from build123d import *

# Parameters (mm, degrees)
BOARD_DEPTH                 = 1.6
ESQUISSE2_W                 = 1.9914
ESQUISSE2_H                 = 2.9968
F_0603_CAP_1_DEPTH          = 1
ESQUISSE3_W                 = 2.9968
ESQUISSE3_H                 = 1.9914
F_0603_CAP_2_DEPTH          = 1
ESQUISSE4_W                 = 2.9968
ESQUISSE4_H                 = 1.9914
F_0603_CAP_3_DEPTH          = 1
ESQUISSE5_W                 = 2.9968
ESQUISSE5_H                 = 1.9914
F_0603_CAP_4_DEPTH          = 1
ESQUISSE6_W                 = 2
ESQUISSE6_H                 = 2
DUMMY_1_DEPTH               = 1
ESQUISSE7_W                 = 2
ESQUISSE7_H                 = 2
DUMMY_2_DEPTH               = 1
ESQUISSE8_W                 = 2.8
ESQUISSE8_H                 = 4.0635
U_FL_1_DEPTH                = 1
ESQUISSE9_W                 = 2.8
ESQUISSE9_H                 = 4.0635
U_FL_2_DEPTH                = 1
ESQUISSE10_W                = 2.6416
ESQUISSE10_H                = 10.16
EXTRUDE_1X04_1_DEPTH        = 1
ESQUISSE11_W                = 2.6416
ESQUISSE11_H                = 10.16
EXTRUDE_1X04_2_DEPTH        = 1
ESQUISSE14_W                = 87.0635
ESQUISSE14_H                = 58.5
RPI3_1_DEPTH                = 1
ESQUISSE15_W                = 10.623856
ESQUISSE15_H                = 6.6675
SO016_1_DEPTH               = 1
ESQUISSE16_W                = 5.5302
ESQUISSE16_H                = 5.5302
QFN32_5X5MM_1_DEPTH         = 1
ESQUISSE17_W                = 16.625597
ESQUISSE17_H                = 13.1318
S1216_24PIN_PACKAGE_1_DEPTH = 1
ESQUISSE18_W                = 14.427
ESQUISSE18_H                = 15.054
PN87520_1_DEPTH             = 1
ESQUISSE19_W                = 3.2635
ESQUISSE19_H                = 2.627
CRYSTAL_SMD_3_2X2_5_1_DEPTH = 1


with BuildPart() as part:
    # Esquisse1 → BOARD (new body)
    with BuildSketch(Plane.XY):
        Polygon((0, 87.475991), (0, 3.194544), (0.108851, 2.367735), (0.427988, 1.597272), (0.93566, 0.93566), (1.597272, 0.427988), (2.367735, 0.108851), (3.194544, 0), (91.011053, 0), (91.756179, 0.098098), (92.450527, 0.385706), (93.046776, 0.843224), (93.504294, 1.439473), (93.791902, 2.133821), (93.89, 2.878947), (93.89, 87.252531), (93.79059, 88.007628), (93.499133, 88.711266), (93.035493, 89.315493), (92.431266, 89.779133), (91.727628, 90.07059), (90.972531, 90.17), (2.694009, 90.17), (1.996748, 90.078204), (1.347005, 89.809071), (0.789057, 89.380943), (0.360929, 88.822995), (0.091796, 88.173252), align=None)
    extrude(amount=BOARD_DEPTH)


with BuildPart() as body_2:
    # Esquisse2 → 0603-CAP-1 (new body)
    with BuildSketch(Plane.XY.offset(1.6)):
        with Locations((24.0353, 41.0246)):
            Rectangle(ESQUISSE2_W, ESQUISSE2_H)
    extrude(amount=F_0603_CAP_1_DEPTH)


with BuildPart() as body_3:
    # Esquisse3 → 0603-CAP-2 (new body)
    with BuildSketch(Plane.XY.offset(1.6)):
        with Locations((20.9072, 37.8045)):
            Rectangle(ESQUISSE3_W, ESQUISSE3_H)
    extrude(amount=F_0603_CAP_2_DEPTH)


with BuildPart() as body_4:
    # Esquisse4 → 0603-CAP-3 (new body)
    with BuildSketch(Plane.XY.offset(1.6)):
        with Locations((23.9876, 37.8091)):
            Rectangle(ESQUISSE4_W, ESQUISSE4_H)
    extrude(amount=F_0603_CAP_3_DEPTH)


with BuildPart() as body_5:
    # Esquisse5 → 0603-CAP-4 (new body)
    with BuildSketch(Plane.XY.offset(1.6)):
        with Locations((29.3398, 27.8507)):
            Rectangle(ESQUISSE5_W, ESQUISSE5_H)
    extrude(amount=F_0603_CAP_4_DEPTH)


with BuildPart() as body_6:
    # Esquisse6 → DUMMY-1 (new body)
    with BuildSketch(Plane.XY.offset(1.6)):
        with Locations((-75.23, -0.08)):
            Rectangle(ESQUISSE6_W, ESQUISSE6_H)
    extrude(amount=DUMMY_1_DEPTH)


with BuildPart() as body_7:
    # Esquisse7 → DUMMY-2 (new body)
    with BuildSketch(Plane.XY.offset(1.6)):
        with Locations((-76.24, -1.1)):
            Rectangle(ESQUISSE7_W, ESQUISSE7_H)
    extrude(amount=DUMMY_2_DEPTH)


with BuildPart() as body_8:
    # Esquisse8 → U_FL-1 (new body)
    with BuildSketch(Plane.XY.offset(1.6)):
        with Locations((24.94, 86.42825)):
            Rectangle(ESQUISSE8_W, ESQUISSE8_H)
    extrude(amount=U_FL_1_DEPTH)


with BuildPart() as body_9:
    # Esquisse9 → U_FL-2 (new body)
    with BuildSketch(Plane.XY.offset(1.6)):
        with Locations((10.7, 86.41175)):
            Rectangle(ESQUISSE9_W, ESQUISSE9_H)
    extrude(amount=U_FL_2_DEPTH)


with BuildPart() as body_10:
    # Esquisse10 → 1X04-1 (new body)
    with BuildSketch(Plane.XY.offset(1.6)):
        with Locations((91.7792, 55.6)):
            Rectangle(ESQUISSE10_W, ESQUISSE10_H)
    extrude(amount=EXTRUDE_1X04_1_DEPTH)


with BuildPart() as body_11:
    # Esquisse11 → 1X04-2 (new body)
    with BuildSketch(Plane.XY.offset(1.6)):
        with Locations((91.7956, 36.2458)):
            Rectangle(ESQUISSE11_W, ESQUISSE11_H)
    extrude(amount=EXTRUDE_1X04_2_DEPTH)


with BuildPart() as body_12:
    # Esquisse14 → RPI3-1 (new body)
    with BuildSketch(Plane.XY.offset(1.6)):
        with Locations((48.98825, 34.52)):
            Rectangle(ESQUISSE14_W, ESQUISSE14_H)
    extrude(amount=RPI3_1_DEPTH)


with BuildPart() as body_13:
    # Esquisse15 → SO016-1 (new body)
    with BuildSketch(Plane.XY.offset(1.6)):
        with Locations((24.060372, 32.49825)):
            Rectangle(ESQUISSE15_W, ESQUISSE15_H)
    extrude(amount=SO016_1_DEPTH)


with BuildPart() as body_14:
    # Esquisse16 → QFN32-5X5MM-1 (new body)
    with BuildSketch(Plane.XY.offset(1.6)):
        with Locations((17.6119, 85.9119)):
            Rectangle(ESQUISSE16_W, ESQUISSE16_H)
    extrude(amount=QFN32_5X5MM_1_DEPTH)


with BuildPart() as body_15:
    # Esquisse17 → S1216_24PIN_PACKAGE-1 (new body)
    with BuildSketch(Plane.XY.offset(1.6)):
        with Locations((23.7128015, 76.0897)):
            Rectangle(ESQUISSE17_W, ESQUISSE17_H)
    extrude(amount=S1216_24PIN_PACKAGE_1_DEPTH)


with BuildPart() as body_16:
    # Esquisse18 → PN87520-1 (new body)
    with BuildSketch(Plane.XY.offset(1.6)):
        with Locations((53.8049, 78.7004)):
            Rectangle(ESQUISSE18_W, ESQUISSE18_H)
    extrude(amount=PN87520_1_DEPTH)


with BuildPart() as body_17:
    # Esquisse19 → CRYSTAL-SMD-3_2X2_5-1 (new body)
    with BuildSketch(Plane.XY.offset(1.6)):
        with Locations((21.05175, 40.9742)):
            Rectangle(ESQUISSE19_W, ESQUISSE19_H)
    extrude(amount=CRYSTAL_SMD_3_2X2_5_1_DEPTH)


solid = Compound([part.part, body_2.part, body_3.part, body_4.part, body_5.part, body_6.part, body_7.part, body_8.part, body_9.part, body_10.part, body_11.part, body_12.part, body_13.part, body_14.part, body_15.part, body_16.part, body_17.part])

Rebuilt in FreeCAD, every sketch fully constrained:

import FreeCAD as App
import Part
import Sketcher


def add_polygon(sketch, points):
    """Adds a closed chain of lines whose ends are joined by coincident constraints."""
    first, n = sketch.GeometryCount, len(points)
    for a, b in zip(points, points[1:] + points[:1]):
        sketch.addGeometry(Part.LineSegment(App.Vector(*a, 0), App.Vector(*b, 0)), False)
    for i in range(n):
        sketch.addConstraint(Sketcher.Constraint("Coincident", first + i, 2, first + (i + 1) % n, 1))

doc = App.newDocument("Part")
body = doc.addObject("PartDesign::Body", "Body")

sketch1 = body.newObject("Sketcher::SketchObject", "Sketch")
sketch1.AttachmentSupport = (doc.getObject("XY_Plane"), [""])
sketch1.MapMode = "FlatFace"
add_polygon(sketch1, [(0, 87.475991), (0, 3.194544), (0.108851, 2.367735), (0.427988, 1.597272), (0.93566, 0.93566), (1.597272, 0.427988), (2.367735, 0.108851), (3.194544, 0), (91.011053, 0), (91.756179, 0.098098), (92.450527, 0.385706), (93.046776, 0.843224), (93.504294, 1.439473), (93.791902, 2.133821), (93.89, 2.878947), (93.89, 87.252531), (93.79059, 88.007628), (93.499133, 88.711266), (93.035493, 89.315493), (92.431266, 89.779133), (91.727628, 90.07059), (90.972531, 90.17), (2.694009, 90.17), (1.996748, 90.078204), (1.347005, 89.809071), (0.789057, 89.380943), (0.360929, 88.822995), (0.091796, 88.173252)])
sketch1.addConstraint([
    Sketcher.Constraint("Vertical", 0),
    Sketcher.Constraint("Horizontal", 7),
    Sketcher.Constraint("Vertical", 14),
    Sketcher.Constraint("Horizontal", 21),
    Sketcher.Constraint("PointOnObject", 0, 2, -2),
    Sketcher.Constraint("PointOnObject", 6, 2, -1),
    Sketcher.Constraint("DistanceX", -1, 1, 13, 2, 93.89),
    Sketcher.Constraint("DistanceY", -1, 1, 20, 2, 90.17),
    Sketcher.Constraint("DistanceX", 7, 1, 7, 2, 87.816509),
    Sketcher.Constraint("DistanceX", -1, 1, 12, 2, 93.791902),
    Sketcher.Constraint("DistanceY", 14, 2, 18, 2, 2.526602),
    Sketcher.Constraint("DistanceX", 20, 2, 16, 2, 2.526602),
    Sketcher.Constraint("DistanceY", 2, 2, 23, 2, 88.211799),
    Sketcher.Constraint("DistanceY", 0, 2, 24, 2, 86.186399),
    Sketcher.Constraint("Distance", 17, 0.761612),
    Sketcher.Constraint("Distance", 18, 0.761612),
    Sketcher.Constraint("DistanceX", 21, 2, 21, 1, 88.278522),
    Sketcher.Constraint("DistanceY", 0, 2, 0, 1, 84.281447),
    Sketcher.Constraint("DistanceY", 14, 1, 14, 2, 84.373584),
    Sketcher.Constraint("DistanceX", -1, 1, 1, 2, 0.108851),
    Sketcher.Constraint("DistanceX", -1, 1, 3, 2, 0.93566),
    Sketcher.Constraint("DistanceY", -1, 1, 3, 2, 0.93566),
    Sketcher.Constraint("DistanceY", -1, 1, 5, 2, 0.108851),
    Sketcher.Constraint("DistanceX", -1, 1, 8, 2, 91.756179),
    Sketcher.Constraint("DistanceY", -1, 1, 12, 2, 2.133821),
    Sketcher.Constraint("DistanceY", -1, 1, 14, 2, 87.252531),
    Sketcher.Constraint("DistanceX", -1, 1, 15, 2, 93.79059),
    Sketcher.Constraint("DistanceY", -1, 1, 19, 2, 90.07059),
    Sketcher.Constraint("DistanceX", -1, 1, 20, 2, 90.972531),
    Sketcher.Constraint("DistanceY", -1, 1, 23, 2, 89.809071),
    Sketcher.Constraint("DistanceX", -1, 1, 25, 2, 0.360929),
    Sketcher.Constraint("DistanceY", -1, 1, 27, 2, 87.475991),
    Sketcher.Constraint("DistanceY", 1, 2, 0, 2, 0.826809),
    Sketcher.Constraint("DistanceX", 3, 2, 4, 2, 0.661612),
    Sketcher.Constraint("DistanceX", 5, 2, 6, 2, 0.826809),
    Sketcher.Constraint("DistanceX", 4, 2, 7, 2, 89.413781),
    Sketcher.Constraint("DistanceY", 8, 2, 4, 2, 0.32989),
    Sketcher.Constraint("DistanceX", 5, 2, 9, 2, 90.082792),
    Sketcher.Constraint("DistanceY", 9, 2, 4, 2, 0.042282),
    Sketcher.Constraint("DistanceX", 9, 2, 10, 2, 0.596249),
    Sketcher.Constraint("DistanceX", 10, 2, 11, 2, 0.457518),
    Sketcher.Constraint("DistanceY", 10, 2, 11, 2, 0.596249),
    Sketcher.Constraint("DistanceY", 11, 2, 12, 2, 0.694348),
    Sketcher.Constraint("DistanceY", 9, 2, 13, 2, 2.493241),
    Sketcher.Constraint("DistanceY", 13, 2, 15, 2, 85.128681),
    Sketcher.Constraint("DistanceY", 13, 2, 16, 2, 85.832319),
    Sketcher.Constraint("DistanceX", 17, 2, 16, 2, 0.46364),
    Sketcher.Constraint("DistanceX", 19, 2, 15, 2, 2.062962),
    Sketcher.Constraint("DistanceX", 2, 2, 21, 2, 2.266021),
    Sketcher.Constraint("DistanceX", 22, 2, 21, 2, 0.697261),
    Sketcher.Constraint("DistanceY", 0, 2, 22, 2, 86.88366),
    Sketcher.Constraint("DistanceX", 24, 2, 23, 2, 0.557948),
    Sketcher.Constraint("DistanceX", 24, 2, 22, 2, 1.207691),
    Sketcher.Constraint("DistanceY", 25, 2, 22, 2, 1.255209),
    Sketcher.Constraint("DistanceX", 26, 2, 24, 2, 0.697261),
    Sketcher.Constraint("DistanceY", 26, 2, 24, 2, 1.207691),
])
pad1 = body.newObject("PartDesign::Pad", "Pad")
pad1.Profile = sketch1
pad1.Length = 1.6
body2 = doc.addObject("PartDesign::Body", "Body001")

sketch2 = body2.newObject("Sketcher::SketchObject", "Sketch001")
sketch2.AttachmentSupport = (doc.getObject("XY_Plane001"), [""])
sketch2.MapMode = "FlatFace"
sketch2.AttachmentOffset = App.Placement(App.Vector(0, 0, 1.6), App.Rotation())
add_polygon(sketch2, [(23.0396, 42.523), (23.0396, 39.5262), (25.031, 39.5262), (25.031, 42.523)])
sketch2.addConstraint([
    Sketcher.Constraint("Vertical", 0),
    Sketcher.Constraint("Horizontal", 1),
    Sketcher.Constraint("Vertical", 2),
    Sketcher.Constraint("Horizontal", 3),
    Sketcher.Constraint("DistanceX", 1, 1, 1, 2, 1.9914),
    Sketcher.Constraint("DistanceY", 0, 2, 0, 1, 2.9968),
    Sketcher.Constraint("DistanceX", -1, 1, 1, 2, 25.031),
    Sketcher.Constraint("DistanceY", -1, 1, 2, 2, 42.523),
])
pad2 = body2.newObject("PartDesign::Pad", "Pad001")
pad2.Profile = sketch2
pad2.Length = 1
body3 = doc.addObject("PartDesign::Body", "Body002")

sketch3 = body3.newObject("Sketcher::SketchObject", "Sketch002")
sketch3.AttachmentSupport = (doc.getObject("XY_Plane002"), [""])
sketch3.MapMode = "FlatFace"
sketch3.AttachmentOffset = App.Placement(App.Vector(0, 0, 1.6), App.Rotation())
add_polygon(sketch3, [(19.4088, 38.8002), (19.4088, 36.8088), (22.4056, 36.8088), (22.4056, 38.8002)])
sketch3.addConstraint([
    Sketcher.Constraint("Vertical", 0),
    Sketcher.Constraint("Horizontal", 1),
    Sketcher.Constraint("Vertical", 2),
    Sketcher.Constraint("Horizontal", 3),
    Sketcher.Constraint("DistanceX", 1, 1, 1, 2, 2.9968),
    Sketcher.Constraint("DistanceY", 0, 2, 0, 1, 1.9914),
    Sketcher.Constraint("DistanceX", -1, 1, 0, 2, 19.4088),
    Sketcher.Constraint("DistanceY", -1, 1, 0, 2, 36.8088),
])
pad3 = body3.newObject("PartDesign::Pad", "Pad002")
pad3.Profile = sketch3
pad3.Length = 1
body4 = doc.addObject("PartDesign::Body", "Body003")

sketch4 = body4.newObject("Sketcher::SketchObject", "Sketch003")
sketch4.AttachmentSupport = (doc.getObject("XY_Plane003"), [""])
sketch4.MapMode = "FlatFace"
sketch4.AttachmentOffset = App.Placement(App.Vector(0, 0, 1.6), App.Rotation())
add_polygon(sketch4, [(22.4892, 38.8048), (22.4892, 36.8134), (25.486, 36.8134), (25.486, 38.8048)])
sketch4.addConstraint([
    Sketcher.Constraint("Vertical", 0),
    Sketcher.Constraint("Horizontal", 1),
    Sketcher.Constraint("Vertical", 2),
    Sketcher.Constraint("Horizontal", 3),
    Sketcher.Constraint("DistanceX", 1, 1, 1, 2, 2.9968),
    Sketcher.Constraint("DistanceY", 0, 2, 0, 1, 1.9914),
    Sketcher.Constraint("DistanceX", -1, 1, 1, 2, 25.486),
    Sketcher.Constraint("DistanceY", -1, 1, 0, 2, 36.8134),
])
pad4 = body4.newObject("PartDesign::Pad", "Pad003")
pad4.Profile = sketch4
pad4.Length = 1
body5 = doc.addObject("PartDesign::Body", "Body004")

sketch5 = body5.newObject("Sketcher::SketchObject", "Sketch004")
sketch5.AttachmentSupport = (doc.getObject("XY_Plane004"), [""])
sketch5.MapMode = "FlatFace"
sketch5.AttachmentOffset = App.Placement(App.Vector(0, 0, 1.6), App.Rotation())
add_polygon(sketch5, [(27.8414, 28.8464), (27.8414, 26.855), (30.8382, 26.855), (30.8382, 28.8464)])
sketch5.addConstraint([
    Sketcher.Constraint("Vertical", 0),
    Sketcher.Constraint("Horizontal", 1),
    Sketcher.Constraint("Vertical", 2),
    Sketcher.Constraint("Horizontal", 3),
    Sketcher.Constraint("DistanceX", 1, 1, 1, 2, 2.9968),
    Sketcher.Constraint("DistanceY", 0, 2, 0, 1, 1.9914),
    Sketcher.Constraint("DistanceY", -1, 1, 0, 2, 26.855),
    Sketcher.Constraint("DistanceX", -1, 1, 0, 2, 27.8414),
])
pad5 = body5.newObject("PartDesign::Pad", "Pad004")
pad5.Profile = sketch5
pad5.Length = 1
body6 = doc.addObject("PartDesign::Body", "Body005")

sketch6 = body6.newObject("Sketcher::SketchObject", "Sketch005")
sketch6.AttachmentSupport = (doc.getObject("XY_Plane005"), [""])
sketch6.MapMode = "FlatFace"
sketch6.AttachmentOffset = App.Placement(App.Vector(0, 0, 1.6), App.Rotation())
add_polygon(sketch6, [(-76.23, 0.92), (-76.23, -1.08), (-74.23, -1.08), (-74.23, 0.92)])
sketch6.addConstraint([
    Sketcher.Constraint("Vertical", 0),
    Sketcher.Constraint("Horizontal", 1),
    Sketcher.Constraint("Vertical", 2),
    Sketcher.Constraint("Horizontal", 3),
    Sketcher.Constraint("Equal", 3, 0),
    Sketcher.Constraint("DistanceX", 1, 1, 1, 2, 2.0),
    Sketcher.Constraint("DistanceX", 0, 2, -1, 1, 76.23),
    Sketcher.Constraint("DistanceY", 0, 2, -1, 1, 1.08),
])
pad6 = body6.newObject("PartDesign::Pad", "Pad005")
pad6.Profile = sketch6
pad6.Length = 1
body7 = doc.addObject("PartDesign::Body", "Body006")

sketch7 = body7.newObject("Sketcher::SketchObject", "Sketch006")
sketch7.AttachmentSupport = (doc.getObject("XY_Plane006"), [""])
sketch7.MapMode = "FlatFace"
sketch7.AttachmentOffset = App.Placement(App.Vector(0, 0, 1.6), App.Rotation())
add_polygon(sketch7, [(-77.24, -0.1), (-77.24, -2.1), (-75.24, -2.1), (-75.24, -0.1)])
sketch7.addConstraint([
    Sketcher.Constraint("Vertical", 0),
    Sketcher.Constraint("Horizontal", 1),
    Sketcher.Constraint("Vertical", 2),
    Sketcher.Constraint("Horizontal", 3),
    Sketcher.Constraint("Equal", 3, 0),
    Sketcher.Constraint("DistanceX", 1, 1, 1, 2, 2.0),
    Sketcher.Constraint("DistanceY", 0, 2, -1, 1, 2.1),
    Sketcher.Constraint("DistanceX", 0, 2, -1, 1, 77.24),
])
pad7 = body7.newObject("PartDesign::Pad", "Pad006")
pad7.Profile = sketch7
pad7.Length = 1
body8 = doc.addObject("PartDesign::Body", "Body007")

sketch8 = body8.newObject("Sketcher::SketchObject", "Sketch007")
sketch8.AttachmentSupport = (doc.getObject("XY_Plane007"), [""])
sketch8.MapMode = "FlatFace"
sketch8.AttachmentOffset = App.Placement(App.Vector(0, 0, 1.6), App.Rotation())
add_polygon(sketch8, [(23.54, 88.46), (23.54, 84.3965), (26.34, 84.3965), (26.34, 88.46)])
sketch8.addConstraint([
    Sketcher.Constraint("Vertical", 0),
    Sketcher.Constraint("Horizontal", 1),
    Sketcher.Constraint("Vertical", 2),
    Sketcher.Constraint("Horizontal", 3),
    Sketcher.Constraint("DistanceX", 1, 1, 1, 2, 2.8),
    Sketcher.Constraint("DistanceX", -1, 1, 0, 2, 23.54),
    Sketcher.Constraint("DistanceY", -1, 1, 2, 2, 88.46),
    Sketcher.Constraint("DistanceY", 0, 2, 0, 1, 4.0635),
])
pad8 = body8.newObject("PartDesign::Pad", "Pad007")
pad8.Profile = sketch8
pad8.Length = 1
body9 = doc.addObject("PartDesign::Body", "Body008")

sketch9 = body9.newObject("Sketcher::SketchObject", "Sketch008")
sketch9.AttachmentSupport = (doc.getObject("XY_Plane008"), [""])
sketch9.MapMode = "FlatFace"
sketch9.AttachmentOffset = App.Placement(App.Vector(0, 0, 1.6), App.Rotation())
add_polygon(sketch9, [(9.3, 88.4435), (9.3, 84.38), (12.1, 84.38), (12.1, 88.4435)])
sketch9.addConstraint([
    Sketcher.Constraint("Vertical", 0),
    Sketcher.Constraint("Horizontal", 1),
    Sketcher.Constraint("Vertical", 2),
    Sketcher.Constraint("Horizontal", 3),
    Sketcher.Constraint("DistanceX", 1, 1, 1, 2, 2.8),
    Sketcher.Constraint("DistanceX", -1, 1, 0, 2, 9.3),
    Sketcher.Constraint("DistanceY", -1, 1, 0, 2, 84.38),
    Sketcher.Constraint("DistanceY", 0, 2, 0, 1, 4.0635),
])
pad9 = body9.newObject("PartDesign::Pad", "Pad008")
pad9.Profile = sketch9
pad9.Length = 1
body10 = doc.addObject("PartDesign::Body", "Body009")

sketch10 = body10.newObject("Sketcher::SketchObject", "Sketch009")
sketch10.AttachmentSupport = (doc.getObject("XY_Plane009"), [""])
sketch10.MapMode = "FlatFace"
sketch10.AttachmentOffset = App.Placement(App.Vector(0, 0, 1.6), App.Rotation())
add_polygon(sketch10, [(90.4584, 60.68), (90.4584, 50.52), (93.1, 50.52), (93.1, 60.68)])
sketch10.addConstraint([
    Sketcher.Constraint("Vertical", 0),
    Sketcher.Constraint("Horizontal", 1),
    Sketcher.Constraint("Vertical", 2),
    Sketcher.Constraint("Horizontal", 3),
    Sketcher.Constraint("DistanceY", 0, 2, 0, 1, 10.16),
    Sketcher.Constraint("DistanceX", -1, 1, 1, 2, 93.1),
    Sketcher.Constraint("DistanceY", -1, 1, 0, 2, 50.52),
    Sketcher.Constraint("DistanceX", 1, 1, 1, 2, 2.6416),
])
pad10 = body10.newObject("PartDesign::Pad", "Pad009")
pad10.Profile = sketch10
pad10.Length = 1
body11 = doc.addObject("PartDesign::Body", "Body010")

sketch11 = body11.newObject("Sketcher::SketchObject", "Sketch010")
sketch11.AttachmentSupport = (doc.getObject("XY_Plane010"), [""])
sketch11.MapMode = "FlatFace"
sketch11.AttachmentOffset = App.Placement(App.Vector(0, 0, 1.6), App.Rotation())
add_polygon(sketch11, [(90.4748, 41.3258), (90.4748, 31.1658), (93.1164, 31.1658), (93.1164, 41.3258)])
sketch11.addConstraint([
    Sketcher.Constraint("Vertical", 0),
    Sketcher.Constraint("Horizontal", 1),
    Sketcher.Constraint("Vertical", 2),
    Sketcher.Constraint("Horizontal", 3),
    Sketcher.Constraint("DistanceY", 0, 2, 0, 1, 10.16),
    Sketcher.Constraint("DistanceX", 1, 1, 1, 2, 2.6416),
    Sketcher.Constraint("DistanceX", -1, 1, 0, 2, 90.4748),
    Sketcher.Constraint("DistanceY", -1, 1, 0, 2, 31.1658),
])
pad11 = body11.newObject("PartDesign::Pad", "Pad010")
pad11.Profile = sketch11
pad11.Length = 1
body12 = doc.addObject("PartDesign::Body", "Body011")

sketch12 = body12.newObject("Sketcher::SketchObject", "Sketch011")
sketch12.AttachmentSupport = (doc.getObject("XY_Plane011"), [""])
sketch12.MapMode = "FlatFace"
sketch12.AttachmentOffset = App.Placement(App.Vector(0, 0, 1.6), App.Rotation())
add_polygon(sketch12, [(5.4565, 63.77), (5.4565, 5.27), (92.52, 5.27), (92.52, 63.77)])
sketch12.addConstraint([
    Sketcher.Constraint("Vertical", 0),
    Sketcher.Constraint("Horizontal", 1),
    Sketcher.Constraint("Vertical", 2),
    Sketcher.Constraint("Horizontal", 3),
    Sketcher.Constraint("DistanceY", 0, 2, 0, 1, 58.5),
    Sketcher.Constraint("DistanceY", -1, 1, 0, 2, 5.27),
    Sketcher.Constraint("DistanceX", -1, 1, 1, 2, 92.52),
    Sketcher.Constraint("DistanceX", 1, 1, 1, 2, 87.0635),
])
pad12 = body12.newObject("PartDesign::Pad", "Pad011")
pad12.Profile = sketch12
pad12.Length = 1
body13 = doc.addObject("PartDesign::Body", "Body012")

sketch13 = body13.newObject("Sketcher::SketchObject", "Sketch012")
sketch13.AttachmentSupport = (doc.getObject("XY_Plane012"), [""])
sketch13.MapMode = "FlatFace"
sketch13.AttachmentOffset = App.Placement(App.Vector(0, 0, 1.6), App.Rotation())
add_polygon(sketch13, [(18.748444, 35.832), (18.748444, 29.1645), (29.3723, 29.1645), (29.3723, 35.832)])
sketch13.addConstraint([
    Sketcher.Constraint("Vertical", 0),
    Sketcher.Constraint("Horizontal", 1),
    Sketcher.Constraint("Vertical", 2),
    Sketcher.Constraint("Horizontal", 3),
    Sketcher.Constraint("DistanceY", 0, 2, 0, 1, 6.6675),
    Sketcher.Constraint("DistanceY", -1, 1, 2, 2, 35.832),
    Sketcher.Constraint("DistanceX", -1, 1, 1, 2, 29.3723),
    Sketcher.Constraint("DistanceX", 1, 1, 1, 2, 10.623856),
])
pad13 = body13.newObject("PartDesign::Pad", "Pad012")
pad13.Profile = sketch13
pad13.Length = 1
body14 = doc.addObject("PartDesign::Body", "Body013")

sketch14 = body14.newObject("Sketcher::SketchObject", "Sketch013")
sketch14.AttachmentSupport = (doc.getObject("XY_Plane013"), [""])
sketch14.MapMode = "FlatFace"
sketch14.AttachmentOffset = App.Placement(App.Vector(0, 0, 1.6), App.Rotation())
add_polygon(sketch14, [(14.8468, 88.677), (14.8468, 83.1468), (20.377, 83.1468), (20.377, 88.677)])
sketch14.addConstraint([
    Sketcher.Constraint("Vertical", 0),
    Sketcher.Constraint("Horizontal", 1),
    Sketcher.Constraint("Vertical", 2),
    Sketcher.Constraint("Horizontal", 3),
    Sketcher.Constraint("Equal", 3, 0),
    Sketcher.Constraint("DistanceX", 1, 1, 1, 2, 5.5302),
    Sketcher.Constraint("DistanceX", -1, 1, 1, 2, 20.377),
    Sketcher.Constraint("DistanceY", -1, 1, 2, 2, 88.677),
])
pad14 = body14.newObject("PartDesign::Pad", "Pad013")
pad14.Profile = sketch14
pad14.Length = 1
body15 = doc.addObject("PartDesign::Body", "Body014")

sketch15 = body15.newObject("Sketcher::SketchObject", "Sketch014")
sketch15.AttachmentSupport = (doc.getObject("XY_Plane014"), [""])
sketch15.MapMode = "FlatFace"
sketch15.AttachmentOffset = App.Placement(App.Vector(0, 0, 1.6), App.Rotation())
add_polygon(sketch15, [(15.400003, 82.6556), (15.400003, 69.5238), (32.0256, 69.5238), (32.0256, 82.6556)])
sketch15.addConstraint([
    Sketcher.Constraint("Vertical", 0),
    Sketcher.Constraint("Horizontal", 1),
    Sketcher.Constraint("Vertical", 2),
    Sketcher.Constraint("Horizontal", 3),
    Sketcher.Constraint("DistanceY", 0, 2, 0, 1, 13.1318),
    Sketcher.Constraint("DistanceY", -1, 1, 0, 2, 69.5238),
    Sketcher.Constraint("DistanceX", -1, 1, 1, 2, 32.0256),
    Sketcher.Constraint("DistanceX", 1, 1, 1, 2, 16.625597),
])
pad15 = body15.newObject("PartDesign::Pad", "Pad014")
pad15.Profile = sketch15
pad15.Length = 1
body16 = doc.addObject("PartDesign::Body", "Body015")

sketch16 = body16.newObject("Sketcher::SketchObject", "Sketch015")
sketch16.AttachmentSupport = (doc.getObject("XY_Plane015"), [""])
sketch16.MapMode = "FlatFace"
sketch16.AttachmentOffset = App.Placement(App.Vector(0, 0, 1.6), App.Rotation())
add_polygon(sketch16, [(46.5914, 86.2274), (46.5914, 71.1734), (61.0184, 71.1734), (61.0184, 86.2274)])
sketch16.addConstraint([
    Sketcher.Constraint("Vertical", 0),
    Sketcher.Constraint("Horizontal", 1),
    Sketcher.Constraint("Vertical", 2),
    Sketcher.Constraint("Horizontal", 3),
    Sketcher.Constraint("DistanceX", 1, 1, 1, 2, 14.427),
    Sketcher.Constraint("DistanceY", 0, 2, 0, 1, 15.054),
    Sketcher.Constraint("DistanceX", -1, 1, 0, 2, 46.5914),
    Sketcher.Constraint("DistanceY", -1, 1, 0, 2, 71.1734),
])
pad16 = body16.newObject("PartDesign::Pad", "Pad015")
pad16.Profile = sketch16
pad16.Length = 1
body17 = doc.addObject("PartDesign::Body", "Body016")

sketch17 = body17.newObject("Sketcher::SketchObject", "Sketch016")
sketch17.AttachmentSupport = (doc.getObject("XY_Plane016"), [""])
sketch17.MapMode = "FlatFace"
sketch17.AttachmentOffset = App.Placement(App.Vector(0, 0, 1.6), App.Rotation())
add_polygon(sketch17, [(19.42, 42.2877), (19.42, 39.6607), (22.6835, 39.6607), (22.6835, 42.2877)])
sketch17.addConstraint([
    Sketcher.Constraint("Vertical", 0),
    Sketcher.Constraint("Horizontal", 1),
    Sketcher.Constraint("Vertical", 2),
    Sketcher.Constraint("Horizontal", 3),
    Sketcher.Constraint("DistanceY", 0, 2, 0, 1, 2.627),
    Sketcher.Constraint("DistanceX", -1, 1, 0, 2, 19.42),
    Sketcher.Constraint("DistanceX", 1, 1, 1, 2, 3.2635),
    Sketcher.Constraint("DistanceY", -1, 1, 0, 2, 39.6607),
])
pad17 = body17.newObject("PartDesign::Pad", "Pad016")
pad17.Profile = sketch17
pad17.Length = 1

doc.recompute()
